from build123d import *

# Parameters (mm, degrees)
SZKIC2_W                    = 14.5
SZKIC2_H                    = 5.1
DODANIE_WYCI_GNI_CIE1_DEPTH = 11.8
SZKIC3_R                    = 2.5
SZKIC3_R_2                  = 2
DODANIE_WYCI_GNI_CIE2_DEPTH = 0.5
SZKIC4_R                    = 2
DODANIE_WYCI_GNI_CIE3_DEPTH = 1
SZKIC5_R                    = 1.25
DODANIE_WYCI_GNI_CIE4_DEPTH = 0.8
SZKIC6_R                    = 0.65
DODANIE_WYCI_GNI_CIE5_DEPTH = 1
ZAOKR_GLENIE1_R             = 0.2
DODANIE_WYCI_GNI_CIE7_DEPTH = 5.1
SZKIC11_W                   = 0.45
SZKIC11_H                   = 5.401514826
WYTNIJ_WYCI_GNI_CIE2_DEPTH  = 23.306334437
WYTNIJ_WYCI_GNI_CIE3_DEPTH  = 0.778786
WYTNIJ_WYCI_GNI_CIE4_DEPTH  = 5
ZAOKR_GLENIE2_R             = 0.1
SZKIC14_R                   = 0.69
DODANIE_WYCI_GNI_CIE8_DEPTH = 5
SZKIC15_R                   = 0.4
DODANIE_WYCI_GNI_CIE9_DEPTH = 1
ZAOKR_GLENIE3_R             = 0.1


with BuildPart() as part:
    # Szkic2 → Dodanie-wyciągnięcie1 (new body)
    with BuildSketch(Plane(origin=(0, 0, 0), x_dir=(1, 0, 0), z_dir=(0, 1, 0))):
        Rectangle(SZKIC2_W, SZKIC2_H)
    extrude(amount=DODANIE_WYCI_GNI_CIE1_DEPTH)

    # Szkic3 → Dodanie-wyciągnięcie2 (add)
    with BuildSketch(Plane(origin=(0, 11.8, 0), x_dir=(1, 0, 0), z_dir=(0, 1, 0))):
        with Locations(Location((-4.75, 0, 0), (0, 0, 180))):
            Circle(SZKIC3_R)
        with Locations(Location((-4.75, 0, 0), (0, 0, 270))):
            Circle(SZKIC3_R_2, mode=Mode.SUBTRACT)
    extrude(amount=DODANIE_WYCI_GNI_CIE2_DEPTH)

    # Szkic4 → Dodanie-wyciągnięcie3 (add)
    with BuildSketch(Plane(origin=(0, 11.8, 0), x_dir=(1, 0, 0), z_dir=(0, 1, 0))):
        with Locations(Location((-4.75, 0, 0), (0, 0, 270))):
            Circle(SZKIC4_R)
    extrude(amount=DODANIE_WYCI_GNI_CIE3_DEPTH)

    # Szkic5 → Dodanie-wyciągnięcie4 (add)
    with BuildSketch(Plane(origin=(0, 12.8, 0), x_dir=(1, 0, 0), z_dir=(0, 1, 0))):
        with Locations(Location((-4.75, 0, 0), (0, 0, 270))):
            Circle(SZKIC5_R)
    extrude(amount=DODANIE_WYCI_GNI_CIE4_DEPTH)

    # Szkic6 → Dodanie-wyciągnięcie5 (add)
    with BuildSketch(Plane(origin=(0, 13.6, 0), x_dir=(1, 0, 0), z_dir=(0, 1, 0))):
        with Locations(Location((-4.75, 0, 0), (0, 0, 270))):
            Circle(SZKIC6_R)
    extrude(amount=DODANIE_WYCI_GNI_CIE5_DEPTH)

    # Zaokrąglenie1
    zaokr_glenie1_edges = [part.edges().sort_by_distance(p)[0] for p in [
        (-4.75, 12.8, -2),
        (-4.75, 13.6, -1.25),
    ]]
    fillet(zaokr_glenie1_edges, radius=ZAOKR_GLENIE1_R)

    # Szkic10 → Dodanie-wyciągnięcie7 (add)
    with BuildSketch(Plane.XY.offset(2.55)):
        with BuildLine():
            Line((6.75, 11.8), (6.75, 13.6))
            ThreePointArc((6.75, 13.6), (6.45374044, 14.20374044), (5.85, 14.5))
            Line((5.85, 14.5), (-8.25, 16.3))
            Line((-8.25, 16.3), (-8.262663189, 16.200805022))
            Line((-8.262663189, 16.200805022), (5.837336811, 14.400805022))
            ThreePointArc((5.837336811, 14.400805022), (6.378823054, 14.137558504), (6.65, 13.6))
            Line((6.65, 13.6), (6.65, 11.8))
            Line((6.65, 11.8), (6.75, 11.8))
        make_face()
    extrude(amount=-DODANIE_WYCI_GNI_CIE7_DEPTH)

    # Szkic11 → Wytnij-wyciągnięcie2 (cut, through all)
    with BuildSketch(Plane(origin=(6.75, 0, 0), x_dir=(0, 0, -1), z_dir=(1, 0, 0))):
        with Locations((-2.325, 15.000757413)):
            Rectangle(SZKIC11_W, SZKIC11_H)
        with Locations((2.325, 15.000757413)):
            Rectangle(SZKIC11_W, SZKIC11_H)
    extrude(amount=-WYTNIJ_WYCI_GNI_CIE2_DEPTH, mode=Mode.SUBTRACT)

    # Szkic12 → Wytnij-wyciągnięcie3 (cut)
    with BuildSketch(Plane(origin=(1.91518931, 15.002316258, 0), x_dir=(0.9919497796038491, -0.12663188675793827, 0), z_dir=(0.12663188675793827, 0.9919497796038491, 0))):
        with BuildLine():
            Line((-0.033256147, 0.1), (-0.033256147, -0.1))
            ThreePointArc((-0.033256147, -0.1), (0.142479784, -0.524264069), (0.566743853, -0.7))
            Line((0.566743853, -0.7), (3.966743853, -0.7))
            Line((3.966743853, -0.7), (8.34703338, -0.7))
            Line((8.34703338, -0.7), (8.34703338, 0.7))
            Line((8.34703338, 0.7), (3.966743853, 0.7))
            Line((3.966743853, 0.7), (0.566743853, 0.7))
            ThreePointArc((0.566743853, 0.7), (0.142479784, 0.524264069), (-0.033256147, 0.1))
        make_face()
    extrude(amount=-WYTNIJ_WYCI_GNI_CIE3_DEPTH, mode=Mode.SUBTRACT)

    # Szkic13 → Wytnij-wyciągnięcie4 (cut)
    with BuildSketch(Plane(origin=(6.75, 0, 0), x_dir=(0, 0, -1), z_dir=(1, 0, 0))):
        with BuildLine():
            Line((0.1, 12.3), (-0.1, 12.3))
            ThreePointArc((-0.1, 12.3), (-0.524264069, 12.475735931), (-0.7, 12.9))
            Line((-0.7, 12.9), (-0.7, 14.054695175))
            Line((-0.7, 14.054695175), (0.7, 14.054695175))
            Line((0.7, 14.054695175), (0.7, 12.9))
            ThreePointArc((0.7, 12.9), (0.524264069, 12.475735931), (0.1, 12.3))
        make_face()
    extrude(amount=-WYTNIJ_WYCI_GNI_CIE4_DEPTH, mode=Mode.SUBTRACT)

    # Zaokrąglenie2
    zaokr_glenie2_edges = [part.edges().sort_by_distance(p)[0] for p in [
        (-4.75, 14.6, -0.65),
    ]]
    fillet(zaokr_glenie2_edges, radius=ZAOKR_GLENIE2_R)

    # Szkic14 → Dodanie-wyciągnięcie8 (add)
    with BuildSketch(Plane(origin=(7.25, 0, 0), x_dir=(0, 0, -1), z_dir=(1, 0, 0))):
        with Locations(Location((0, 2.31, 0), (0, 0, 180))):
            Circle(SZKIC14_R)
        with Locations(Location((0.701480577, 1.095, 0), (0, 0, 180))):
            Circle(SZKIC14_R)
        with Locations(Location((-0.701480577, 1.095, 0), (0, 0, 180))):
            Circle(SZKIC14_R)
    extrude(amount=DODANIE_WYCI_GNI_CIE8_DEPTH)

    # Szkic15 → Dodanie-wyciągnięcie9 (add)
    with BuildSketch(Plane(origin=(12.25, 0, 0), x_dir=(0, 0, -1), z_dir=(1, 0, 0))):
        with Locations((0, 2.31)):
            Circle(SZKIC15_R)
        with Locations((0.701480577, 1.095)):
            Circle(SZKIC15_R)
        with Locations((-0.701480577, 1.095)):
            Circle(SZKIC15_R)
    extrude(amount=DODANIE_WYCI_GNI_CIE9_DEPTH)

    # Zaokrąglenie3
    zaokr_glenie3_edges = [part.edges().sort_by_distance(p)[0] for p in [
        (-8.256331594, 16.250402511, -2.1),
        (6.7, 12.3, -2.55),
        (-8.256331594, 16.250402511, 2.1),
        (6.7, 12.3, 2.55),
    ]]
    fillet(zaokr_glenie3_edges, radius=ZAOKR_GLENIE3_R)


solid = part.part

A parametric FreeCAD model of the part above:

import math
import FreeCAD as App
import Part
import Sketcher

V = App.Vector


def edges_at(feature, points):
    """Names of the edges that pass closest to the given points."""
    edges = feature.Shape.Edges
    near = lambda p: min(range(len(edges)), key=lambda i: edges[i].distToShape(Part.Vertex(*p))[0])
    return sorted({f"Edge{near(p) + 1}" for p in points})

doc = App.newDocument("Part")
body = doc.addObject("PartDesign::Body", "Body")

# Sketch on XZ plane
sketch1 = body.newObject("Sketcher::SketchObject", "Sketch")
sketch1.AttachmentSupport = (doc.getObject("XZ_Plane"), [""])
sketch1.MapMode = "FlatFace"
sketch1.addGeometry([
    Part.LineSegment(V(-7, -3, 0), V(-7, 3, 0)),
    Part.LineSegment(V(-7, 3, 0), V(7, 3, 0)),
    Part.LineSegment(V(7, 3, 0), V(7, -3, 0)),
    Part.LineSegment(V(7, -3, 0), V(-7, -3, 0)),
], False)
sketch1.addConstraint([
    Sketcher.Constraint("Coincident", 0, 2, 1, 1),
    Sketcher.Constraint("Coincident", 1, 2, 2, 1),
    Sketcher.Constraint("Coincident", 2, 2, 3, 1),
    Sketcher.Constraint("Coincident", 3, 2, 0, 1),
    Sketcher.Constraint("Vertical", 0),
    Sketcher.Constraint("Horizontal", 1),
    Sketcher.Constraint("Vertical", 2),
    Sketcher.Constraint("Horizontal", 3),
    Sketcher.Constraint("Symmetric", 0, 2, 2, 2, -1, 1),
    Sketcher.Constraint("DistanceX", 1, 1, 1, 2, 14.5),
    Sketcher.Constraint("DistanceY", 0, 1, 0, 2, 5.1),
])
pad1 = body.newObject("PartDesign::Pad", "Pad")
pad1.Profile = sketch1
pad1.Length = 11.8
pad1.Reversed = True

# Sketch on XZ plane
sketch2 = body.newObject("Sketcher::SketchObject", "Sketch001")
sketch2.AttachmentSupport = (doc.getObject("XZ_Plane"), [""])
sketch2.MapMode = "FlatFace"
sketch2.AttachmentOffset = App.Placement(V(0, 0, -11.8), App.Rotation())
sketch2.addGeometry([
    Part.Circle(V(-4.8, 0, 0), V(0, 0, 1), 2.5),
    Part.Circle(V(-4.8, 0, 0), V(0, 0, 1), 2),
], False)
sketch2.addConstraint([
    Sketcher.Constraint("Coincident", 1, 3, 0, 3),
    Sketcher.Constraint("PointOnObject", 0, 3, -1),
    Sketcher.Constraint("Diameter", 0, 5.0),
    Sketcher.Constraint("Diameter", 1, 4.0),
    Sketcher.Constraint("DistanceX", 0, 3, -1, 1, 4.75),
])
pad2 = body.newObject("PartDesign::Pad", "Pad001")
pad2.Profile = sketch2
pad2.Length = 0.5
pad2.Reversed = True

# Sketch on XZ plane
sketch3 = body.newObject("Sketcher::SketchObject", "Sketch002")
sketch3.AttachmentSupport = (doc.getObject("XZ_Plane"), [""])
sketch3.MapMode = "FlatFace"
sketch3.AttachmentOffset = App.Placement(V(0, 0, -11.8), App.Rotation())
sketch3.addGeometry(Part.Circle(V(-4.8, 0, 0), V(0, 0, 1), 2), False)
sketch3.addConstraint([
    Sketcher.Constraint("PointOnObject", 0, 3, -1),
    Sketcher.Constraint("Diameter", 0, 4.0),
    Sketcher.Constraint("DistanceX", 0, 3, -1, 1, 4.75),
])
pad3 = body.newObject("PartDesign::Pad", "Pad002")
pad3.Profile = sketch3
pad3.Length = 1
pad3.Reversed = True

# Sketch on XZ plane
sketch4 = body.newObject("Sketcher::SketchObject", "Sketch003")
sketch4.AttachmentSupport = (doc.getObject("XZ_Plane"), [""])
sketch4.MapMode = "FlatFace"
sketch4.AttachmentOffset = App.Placement(V(0, 0, -12.8), App.Rotation())
sketch4.addGeometry(Part.Circle(V(-4.8, 0, 0), V(0, 0, 1), 1.2), False)
sketch4.addConstraint([
    Sketcher.Constraint("PointOnObject", 0, 3, -1),
    Sketcher.Constraint("Diameter", 0, 2.5),
    Sketcher.Constraint("DistanceX", 0, 3, -1, 1, 4.75),
])
pad4 = body.newObject("PartDesign::Pad", "Pad003")
pad4.Profile = sketch4
pad4.Length = 0.8
pad4.Reversed = True

# Sketch on XZ plane
sketch5 = body.newObject("Sketcher::SketchObject", "Sketch004")
sketch5.AttachmentSupport = (doc.getObject("XZ_Plane"), [""])
sketch5.MapMode = "FlatFace"
sketch5.AttachmentOffset = App.Placement(V(0, 0, -13.6), App.Rotation())
sketch5.addGeometry(Part.Circle(V(-4.8, 0, 0), V(0, 0, 1), 0.7), False)
sketch5.addConstraint([
    Sketcher.Constraint("PointOnObject", 0, 3, -1),
    Sketcher.Constraint("Diameter", 0, 1.3),
    Sketcher.Constraint("DistanceX", 0, 3, -1, 1, 4.75),
])
pad5 = body.newObject("PartDesign::Pad", "Pad004")
pad5.Profile = sketch5
pad5.Length = 1
pad5.Reversed = True
doc.recompute()

fillet = body.newObject("PartDesign::Fillet", "Fillet")
fillet.Base = (pad5, edges_at(pad5, [(-4.75, 12.8, -2), (-4.75, 13.6, -1.25)]))
fillet.Radius = 0.2

# Sketch on XY plane
sketch6 = body.newObject("Sketcher::SketchObject", "Sketch005")
sketch6.AttachmentSupport = (doc.getObject("XY_Plane"), [""])
sketch6.MapMode = "FlatFace"
sketch6.AttachmentOffset = App.Placement(V(0, 0, 2.55), App.Rotation())
sketch6.addGeometry([
    Part.LineSegment(V(6.75, 11.8, 0), V(6.75, 13.6, 0)),  # 0
    Part.ArcOfCircle(Part.Circle(V(5.72, 13.47, 0), V(0, 0, 1), 1.04), math.radians(7), math.radians(83)),  # 1
    Part.LineSegment(V(5.85, 14.5, 0), V(-8.25, 16.3, 0)),  # 2
    Part.LineSegment(V(-8.25, 16.3, 0), V(-8.26, 16.2, 0)),  # 3
    Part.LineSegment(V(-8.26, 16.2, 0), V(5.84, 14.4, 0)),  # 4
    Part.ArcOfCircle(Part.Circle(V(5.72, 13.47, 0), V(0, 0, 1), 0.94), math.radians(8), math.radians(83)),  # 5
    Part.LineSegment(V(6.65, 13.6, 0), V(6.65, 11.8, 0)),  # 6
    Part.LineSegment(V(6.65, 11.8, 0), V(6.75, 11.8, 0)),  # 7
], False)
sketch6.addConstraint([
    Sketcher.Constraint("Coincident", 0, 2, 1, 1),
    Sketcher.Constraint("Tangent", 1, 2, 2, 1),
    Sketcher.Constraint("Coincident", 2, 2, 3, 1),
    Sketcher.Constraint("Coincident", 3, 2, 4, 1),
    Sketcher.Constraint("Tangent", 4, 2, 5, 2),
    Sketcher.Constraint("Coincident", 5, 1, 6, 1),
    Sketcher.Constraint("Coincident", 6, 2, 7, 1),
    Sketcher.Constraint("Coincident", 7, 2, 0, 1),
    Sketcher.Constraint("Vertical", 0),
    Sketcher.Constraint("Vertical", 6),
    Sketcher.Constraint("Horizontal", 7),
    Sketcher.Constraint("Perpendicular", 2, 3),
    Sketcher.Constraint("Perpendicular", 3, 4),
    Sketcher.Constraint("Horizontal", 0, 2, 5, 1),
    Sketcher.Constraint("Equal", 2, 4),
    Sketcher.Constraint("DistanceX", 7, 1, 7, 2, 0.1),
    Sketcher.Constraint("DistanceY", 0, 1, 0, 2, 1.8),
    Sketcher.Constraint("DistanceX", 2, 2, 0, 2, 15.0),
    Sketcher.Constraint("Distance", 3, 0.1),
    Sketcher.Constraint("DistanceY", -1, 1, 0, 2, 13.6),
    Sketcher.Constraint("DistanceY", -1, 1, 1, 2, 14.5),
    Sketcher.Constraint("DistanceY", -1, 1, 2, 2, 16.3),
    Sketcher.Constraint("DistanceX", 1, 2, 0, 2, 0.9),
    Sketcher.Constraint("DistanceX", -1, 1, 0, 2, 6.75),
])
pad6 = body.newObject("PartDesign::Pad", "Pad005")
pad6.Profile = sketch6
pad6.Length = 5.1
pad6.Reversed = True

# Sketch on YZ plane
sketch7 = body.newObject("Sketcher::SketchObject", "Sketch006")
sketch7.AttachmentSupport = (doc.getObject("YZ_Plane"), [""])
sketch7.MapMode = "FlatFace"
sketch7.AttachmentOffset = App.Placement(V(0, 0, 6.75), App.Rotation())
sketch7.addGeometry([
    Part.LineSegment(V(17.7, 2.55, 0), V(12.3, 2.55, 0)),  # 0
    Part.LineSegment(V(12.3, 2.55, 0), V(12.3, 2.1, 0)),  # 1
    Part.LineSegment(V(12.3, 2.1, 0), V(17.7, 2.1, 0)),  # 2
    Part.LineSegment(V(17.7, 2.1, 0), V(17.7, 2.55, 0)),  # 3
    Part.LineSegment(V(17.7, -2.1, 0), V(12.3, -2.1, 0)),  # 4
    Part.LineSegment(V(12.3, -2.1, 0), V(12.3, -2.55, 0)),  # 5
    Part.LineSegment(V(12.3, -2.55, 0), V(17.7, -2.55, 0)),  # 6
    Part.LineSegment(V(17.7, -2.55, 0), V(17.7, -2.1, 0)),  # 7
], False)
sketch7.addConstraint([
    Sketcher.Constraint("Coincident", 0, 2, 1, 1),
    Sketcher.Constraint("Coincident", 1, 2, 2, 1),
    Sketcher.Constraint("Coincident", 2, 2, 3, 1),
    Sketcher.Constraint("Coincident", 3, 2, 0, 1),
    Sketcher.Constraint("Coincident", 4, 2, 5, 1),
    Sketcher.Constraint("Coincident", 5, 2, 6, 1),
    Sketcher.Constraint("Coincident", 6, 2, 7, 1),
    Sketcher.Constraint("Coincident", 7, 2, 4, 1),
    Sketcher.Constraint("Horizontal", 0),
    Sketcher.Constraint("Vertical", 1),
    Sketcher.Constraint("Horizontal", 2),
    Sketcher.Constraint("Vertical", 3),
    Sketcher.Constraint("Horizontal", 4),
    Sketcher.Constraint("Vertical", 5),
    Sketcher.Constraint("Horizontal", 6),
    Sketcher.Constraint("Vertical", 7),
    Sketcher.Constraint("Symmetric", 1, 2, 4, 2, -1),
    Sketcher.Constraint("Symmetric", 3, 2, 6, 2, -1),
    Sketcher.Constraint("DistanceY", 1, 2, 1, 1, 0.45),
    Sketcher.Constraint("DistanceX", -1, 1, 0, 2, 12.3),
    Sketcher.Constraint("DistanceY", -1, 1, 1, 2, 2.1),
    Sketcher.Constraint("DistanceX", 0, 2, 0, 1, 5.401515),
])
pocket1 = body.newObject("PartDesign::Pocket", "Pocket")
pocket1.Profile = sketch7
pocket1.Type = "ThroughAll"

# Sketch on an angled plane
sketch8 = body.newObject("Sketcher::SketchObject", "Sketch007")
sketch8.Placement = App.Placement(V(1.915189, 15.002316, 0), App.Rotation(V(0.99194978, -0.126631887, 0), V(0, 0, -1.000000001), V(0.126631887, 0.99194978, 0), "ZXY"))
sketch8.addGeometry([
    Part.LineSegment(V(-0.03, 0.1, 0), V(-0.03, -0.1, 0)),  # 0
    Part.ArcOfCircle(Part.Circle(V(0.57, -0.1, 0), V(0, 0, 1), 0.6), math.radians(180), math.radians(270)),  # 1
    Part.LineSegment(V(0.57, -0.7, 0), V(8.35, -0.7, 0)),  # 2
    Part.LineSegment(V(8.35, -0.7, 0), V(8.35, 0.7, 0)),  # 3
    Part.LineSegment(V(8.35, 0.7, 0), V(0.57, 0.7, 0)),  # 4
    Part.ArcOfCircle(Part.Circle(V(0.57, 0.1, 0), V(0, 0, 1), 0.6), math.radians(90), math.radians(180)),  # 5
], False)
sketch8.addConstraint([
    Sketcher.Constraint("Tangent", 0, 2, 1, 1),
    Sketcher.Constraint("Tangent", 1, 2, 2, 1),
    Sketcher.Constraint("Coincident", 2, 2, 3, 1),
    Sketcher.Constraint("Coincident", 3, 2, 4, 1),
    Sketcher.Constraint("Tangent", 4, 2, 5, 1),
    Sketcher.Constraint("Tangent", 5, 2, 0, 1),
    Sketcher.Constraint("Vertical", 0),
    Sketcher.Constraint("Horizontal", 2),
    Sketcher.Constraint("Vertical", 3),
    Sketcher.Constraint("Horizontal", 4),
    Sketcher.Constraint("Equal", 1, 5),
    Sketcher.Constraint("Radius", 1, 0.6),
    Sketcher.Constraint("DistanceY", 0, 2, 0, 1, 0.2),
    Sketcher.Constraint("DistanceY", 1, 3, -1, 1, 0.1),
    Sketcher.Constraint("DistanceX", 2, 1, 2, 2, 7.78029),
    Sketcher.Constraint("DistanceX", -1, 1, 1, 3, 0.566744),
])
pocket2 = body.newObject("PartDesign::Pocket", "Pocket001")
pocket2.Profile = sketch8
pocket2.Length = 0.778786

# Sketch on YZ plane
sketch9 = body.newObject("Sketcher::SketchObject", "Sketch008")
sketch9.AttachmentSupport = (doc.getObject("YZ_Plane"), [""])
sketch9.MapMode = "FlatFace"
sketch9.AttachmentOffset = App.Placement(V(0, 0, 6.75), App.Rotation())
sketch9.addGeometry([
    Part.LineSegment(V(12.3, 0.1, 0), V(12.3, -0.1, 0)),  # 0
    Part.ArcOfCircle(Part.Circle(V(12.9, -0.1, 0), V(0, 0, 1), 0.6), math.radians(180), math.radians(270)),  # 1
    Part.LineSegment(V(12.9, -0.7, 0), V(14.05, -0.7, 0)),  # 2
    Part.LineSegment(V(14.05, -0.7, 0), V(14.05, 0.7, 0)),  # 3
    Part.LineSegment(V(14.05, 0.7, 0), V(12.9, 0.7, 0)),  # 4
    Part.ArcOfCircle(Part.Circle(V(12.9, 0.1, 0), V(0, 0, 1), 0.6), math.radians(90), math.radians(180)),  # 5
], False)
sketch9.addConstraint([
    Sketcher.Constraint("Tangent", 0, 2, 1, 1),
    Sketcher.Constraint("Tangent", 1, 2, 2, 1),
    Sketcher.Constraint("Coincident", 2, 2, 3, 1),
    Sketcher.Constraint("Coincident", 3, 2, 4, 1),
    Sketcher.Constraint("Tangent", 4, 2, 5, 1),
    Sketcher.Constraint("Tangent", 5, 2, 0, 1),
    Sketcher.Constraint("Vertical", 0),
    Sketcher.Constraint("Horizontal", 2),
    Sketcher.Constraint("Vertical", 3),
    Sketcher.Constraint("Horizontal", 4),
    Sketcher.Constraint("Equal", 1, 5),
    Sketcher.Constraint("Radius", 1, 0.6),
    Sketcher.Constraint("DistanceY", 0, 2, 0, 1, 0.2),
    Sketcher.Constraint("DistanceX", -1, 1, 1, 3, 12.9),
    Sketcher.Constraint("DistanceY", 1, 3, -1, 1, 0.1),
    Sketcher.Constraint("DistanceX", 2, 1, 2, 2, 1.154695),
])
pocket3 = body.newObject("PartDesign::Pocket", "Pocket002")
pocket3.Profile = sketch9
pocket3.Length = 5
doc.recompute()

fillet2 = body.newObject("PartDesign::Fillet", "Fillet001")
fillet2.Base = (pocket3, edges_at(pocket3, [(-4.75, 14.6, -0.65)]))
fillet2.Radius = 0.1

# Sketch on YZ plane
sketch10 = body.newObject("Sketcher::SketchObject", "Sketch009")
sketch10.AttachmentSupport = (doc.getObject("YZ_Plane"), [""])
sketch10.MapMode = "FlatFace"
sketch10.AttachmentOffset = App.Placement(V(0, 0, 7.25), App.Rotation())
sketch10.addGeometry([
    Part.Circle(V(2.3, 0, 0), V(0, 0, 1), 0.7),
    Part.Circle(V(1.1, -0.7, 0), V(0, 0, 1), 0.7),
    Part.Circle(V(1.1, 0.7, 0), V(0, 0, 1), 0.7),
], False)
sketch10.addConstraint([
    Sketcher.Constraint("Equal", 0, 1),
    Sketcher.Constraint("Equal", 1, 2),
    Sketcher.Constraint("Symmetric", 1, 3, 2, 3, -1),
    Sketcher.Constraint("PointOnObject", 0, 3, -1),
    Sketcher.Constraint("Diameter", 0, 1.38),
    Sketcher.Constraint("DistanceX", -1, 1, 0, 3, 2.31),
    Sketcher.Constraint("DistanceX", -1, 1, 1, 3, 1.095),
    Sketcher.Constraint("DistanceY", 1, 3, -1, 1, 0.701481),
])
pad7 = body.newObject("PartDesign::Pad", "Pad006")
pad7.Profile = sketch10
pad7.Length = 5

# Sketch on YZ plane
sketch11 = body.newObject("Sketcher::SketchObject", "Sketch010")
sketch11.AttachmentSupport = (doc.getObject("YZ_Plane"), [""])
sketch11.MapMode = "FlatFace"
sketch11.AttachmentOffset = App.Placement(V(0, 0, 12.25), App.Rotation())
sketch11.addGeometry([
    Part.Circle(V(2.31, 0, 0), V(0, 0, 1), 0.4),
    Part.Circle(V(1.09, -0.7, 0), V(0, 0, 1), 0.4),
    Part.Circle(V(1.09, 0.7, 0), V(0, 0, 1), 0.4),
], False)
sketch11.addConstraint([
    Sketcher.Constraint("Equal", 0, 1),
    Sketcher.Constraint("Equal", 1, 2),
    Sketcher.Constraint("Symmetric", 1, 3, 2, 3, -1),
    Sketcher.Constraint("PointOnObject", 0, 3, -1),
    Sketcher.Constraint("Diameter", 0, 0.8),
    Sketcher.Constraint("DistanceX", -1, 1, 0, 3, 2.31),
    Sketcher.Constraint("DistanceX", -1, 1, 1, 3, 1.095),
    Sketcher.Constraint("DistanceY", 1, 3, -1, 1, 0.701481),
])
pad8 = body.newObject("PartDesign::Pad", "Pad007")
pad8.Profile = sketch11
pad8.Length = 1
doc.recompute()

fillet3 = body.newObject("PartDesign::Fillet", "Fillet002")
fillet3.Base = (pad8, edges_at(pad8, [
    (-8.256, 16.25, -2.1),
    (6.7, 12.3, -2.55),
    (-8.256, 16.25, 2.1),
    (6.7, 12.3, 2.55),
]))
fillet3.Radius = 0.1

doc.recompute()
